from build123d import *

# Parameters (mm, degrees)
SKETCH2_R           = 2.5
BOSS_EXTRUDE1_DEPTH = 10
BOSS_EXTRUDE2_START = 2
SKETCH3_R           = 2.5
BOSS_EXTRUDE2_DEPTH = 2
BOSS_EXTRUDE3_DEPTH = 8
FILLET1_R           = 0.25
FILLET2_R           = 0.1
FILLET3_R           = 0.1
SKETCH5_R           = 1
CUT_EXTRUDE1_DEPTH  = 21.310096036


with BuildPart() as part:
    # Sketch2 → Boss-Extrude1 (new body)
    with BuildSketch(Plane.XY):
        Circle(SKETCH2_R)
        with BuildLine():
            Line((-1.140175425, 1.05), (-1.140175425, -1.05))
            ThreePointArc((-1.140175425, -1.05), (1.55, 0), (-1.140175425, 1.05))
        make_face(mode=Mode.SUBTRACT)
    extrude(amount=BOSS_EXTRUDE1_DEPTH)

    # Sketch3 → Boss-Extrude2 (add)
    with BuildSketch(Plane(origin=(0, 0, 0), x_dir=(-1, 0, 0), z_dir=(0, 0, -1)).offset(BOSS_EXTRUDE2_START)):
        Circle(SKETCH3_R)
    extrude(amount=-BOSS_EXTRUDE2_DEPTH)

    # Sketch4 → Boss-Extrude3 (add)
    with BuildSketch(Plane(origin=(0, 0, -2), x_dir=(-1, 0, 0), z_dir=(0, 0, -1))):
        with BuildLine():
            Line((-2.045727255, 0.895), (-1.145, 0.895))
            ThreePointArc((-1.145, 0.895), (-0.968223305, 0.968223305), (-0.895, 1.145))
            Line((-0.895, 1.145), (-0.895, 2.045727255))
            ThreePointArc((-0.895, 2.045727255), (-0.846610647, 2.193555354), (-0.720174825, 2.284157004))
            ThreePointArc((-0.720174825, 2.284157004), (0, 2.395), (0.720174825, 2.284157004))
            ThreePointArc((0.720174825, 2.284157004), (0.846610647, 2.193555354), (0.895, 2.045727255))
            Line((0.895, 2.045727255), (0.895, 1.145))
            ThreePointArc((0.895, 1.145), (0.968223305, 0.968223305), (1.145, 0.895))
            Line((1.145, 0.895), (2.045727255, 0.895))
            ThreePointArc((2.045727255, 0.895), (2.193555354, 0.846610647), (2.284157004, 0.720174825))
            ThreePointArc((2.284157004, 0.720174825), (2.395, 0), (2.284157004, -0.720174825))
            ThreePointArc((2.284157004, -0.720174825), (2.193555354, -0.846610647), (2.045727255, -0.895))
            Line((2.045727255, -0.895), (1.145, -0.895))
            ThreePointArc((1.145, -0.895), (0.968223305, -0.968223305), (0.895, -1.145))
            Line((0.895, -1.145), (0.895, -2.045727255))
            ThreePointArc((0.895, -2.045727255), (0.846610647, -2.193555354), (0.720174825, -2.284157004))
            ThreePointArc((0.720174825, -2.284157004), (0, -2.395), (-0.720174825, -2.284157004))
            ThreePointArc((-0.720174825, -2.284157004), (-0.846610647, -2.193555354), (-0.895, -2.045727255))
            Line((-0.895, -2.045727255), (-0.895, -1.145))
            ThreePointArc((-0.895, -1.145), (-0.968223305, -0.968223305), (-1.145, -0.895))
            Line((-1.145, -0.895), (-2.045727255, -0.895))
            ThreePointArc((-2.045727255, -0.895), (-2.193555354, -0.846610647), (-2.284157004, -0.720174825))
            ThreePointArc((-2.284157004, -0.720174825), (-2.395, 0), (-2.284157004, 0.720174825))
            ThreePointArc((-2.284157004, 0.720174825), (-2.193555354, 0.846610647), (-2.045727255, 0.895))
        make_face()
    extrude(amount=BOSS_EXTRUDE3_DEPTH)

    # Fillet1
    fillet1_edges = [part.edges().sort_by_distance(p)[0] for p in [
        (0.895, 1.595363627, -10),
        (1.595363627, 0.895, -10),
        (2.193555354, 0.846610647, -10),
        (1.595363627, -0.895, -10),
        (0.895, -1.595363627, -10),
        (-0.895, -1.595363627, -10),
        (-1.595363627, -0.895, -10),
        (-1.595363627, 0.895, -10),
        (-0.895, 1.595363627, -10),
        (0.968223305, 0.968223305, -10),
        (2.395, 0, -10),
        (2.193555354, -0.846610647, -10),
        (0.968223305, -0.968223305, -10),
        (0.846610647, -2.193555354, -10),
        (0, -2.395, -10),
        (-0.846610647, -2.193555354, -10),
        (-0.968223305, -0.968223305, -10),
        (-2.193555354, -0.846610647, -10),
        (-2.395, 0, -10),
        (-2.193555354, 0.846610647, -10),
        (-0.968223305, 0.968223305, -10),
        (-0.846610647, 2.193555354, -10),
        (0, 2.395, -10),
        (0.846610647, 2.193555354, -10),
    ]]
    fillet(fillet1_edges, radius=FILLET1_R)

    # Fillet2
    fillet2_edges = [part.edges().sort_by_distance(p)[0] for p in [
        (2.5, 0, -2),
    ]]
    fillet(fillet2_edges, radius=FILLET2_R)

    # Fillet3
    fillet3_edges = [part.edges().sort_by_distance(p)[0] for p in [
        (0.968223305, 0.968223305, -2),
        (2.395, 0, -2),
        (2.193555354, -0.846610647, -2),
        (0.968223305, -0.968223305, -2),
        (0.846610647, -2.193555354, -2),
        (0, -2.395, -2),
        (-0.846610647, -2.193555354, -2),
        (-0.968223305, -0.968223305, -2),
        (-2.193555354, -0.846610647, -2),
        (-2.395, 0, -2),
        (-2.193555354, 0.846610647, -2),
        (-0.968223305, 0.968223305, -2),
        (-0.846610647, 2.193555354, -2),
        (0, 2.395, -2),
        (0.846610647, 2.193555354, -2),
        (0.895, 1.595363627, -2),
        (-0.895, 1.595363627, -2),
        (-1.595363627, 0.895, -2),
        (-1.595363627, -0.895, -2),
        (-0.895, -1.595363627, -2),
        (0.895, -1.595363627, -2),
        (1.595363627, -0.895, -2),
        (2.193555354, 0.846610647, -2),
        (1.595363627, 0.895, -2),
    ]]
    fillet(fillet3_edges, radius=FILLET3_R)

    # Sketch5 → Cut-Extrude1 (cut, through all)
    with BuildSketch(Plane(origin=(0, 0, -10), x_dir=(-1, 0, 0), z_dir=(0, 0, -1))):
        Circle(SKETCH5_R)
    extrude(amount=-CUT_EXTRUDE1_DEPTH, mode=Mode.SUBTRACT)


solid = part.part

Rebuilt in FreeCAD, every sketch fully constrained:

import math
import FreeCAD as App
import Part
import Sketcher

V = App.Vector
Q = App.Units.Quantity


def edges_at(feature, points):
    """Names of the edges that pass closest to the given points."""
    edges = feature.Shape.Edges
    near = lambda p: min(range(len(edges)), key=lambda i: edges[i].distToShape(Part.Vertex(*p))[0])
    return sorted({f"Edge{near(p) + 1}" for p in points})

doc = App.newDocument("Part")
params = doc.addObject("Spreadsheet::Sheet", "Params")
for row, (alias, value) in enumerate([
    ("sketch1_diameter", "5 mm"),
    ("sketch1_radius", "1.55 mm"),
    ("sketch1_height", "2.1 mm"),
    ("pad1_length", "10 mm"),
    ("sketch2_diameter", "5 mm"),
    ("pad2_length", "2 mm"),
    ("sketch3_radius", "0.25 mm"),
    ("pad3_length", "8 mm"),
    ("fillet_radius", "0.25 mm"),
    ("fillet2_radius", "0.1 mm"),
    ("fillet3_radius", "0.1 mm"),
    ("sketch4_diameter", "2 mm"),
], start=1):
    params.set(f"A{row}", alias)
    params.set(f"B{row}", "=" + value)
    params.setAlias(f"B{row}", alias)

body = doc.addObject("PartDesign::Body", "Body")

# Sketch on XY plane
sketch1 = body.newObject("Sketcher::SketchObject", "Sketch")
sketch1.AttachmentSupport = (doc.getObject("XY_Plane"), [""])
sketch1.MapMode = "FlatFace"
sketch1.addGeometry([
    Part.Circle(V(0, 0, 0), V(0, 0, 1), 2.5),
    Part.LineSegment(V(-1.140175, -1.05, 0), V(-1.140175, 1.05, 0)),
    Part.ArcOfCircle(Part.Circle(V(0, 0, 0), V(0, 0, 1), 1.55), math.radians(-137.35769), math.radians(137.35769)),
], False)
sketch1.addConstraint([
    Sketcher.Constraint("Coincident", 1, 1, 2, 1),
    Sketcher.Constraint("Coincident", 2, 2, 1, 2),
    Sketcher.Constraint("Vertical", 1),
    Sketcher.Constraint("Coincident", 0, 3, -1, 1),
    Sketcher.Constraint("Coincident", 2, 3, -1, 1),
    Sketcher.Constraint("Diameter", 0, Q("5 mm")),
    Sketcher.Constraint("Radius", 2, Q("1.55 mm")),
    Sketcher.Constraint("DistanceY", 1, 1, 1, 2, Q("2.1 mm")),
])
sketch1.setExpression("Constraints[5]", "Params.sketch1_diameter")
sketch1.setExpression("Constraints[6]", "Params.sketch1_radius")
sketch1.setExpression("Constraints[7]", "Params.sketch1_height")
pad1 = body.newObject("PartDesign::Pad", "Pad")
pad1.Profile = sketch1
pad1.setExpression("Length", "Params.pad1_length")

# Sketch on XY plane
sketch2 = body.newObject("Sketcher::SketchObject", "Sketch001")
sketch2.AttachmentSupport = (doc.getObject("XY_Plane"), [""])
sketch2.MapMode = "FlatFace"
sketch2.AttachmentOffset = App.Placement(V(0, 0, -2), App.Rotation())
sketch2.addGeometry(Part.Circle(V(0, 0, 0), V(0, 0, 1), 2.5), False)
sketch2.addConstraint([
    Sketcher.Constraint("Coincident", 0, 3, -1, 1),
    Sketcher.Constraint("Diameter", 0, Q("5 mm")),
])
sketch2.setExpression("Constraints[1]", "Params.sketch2_diameter")
pad2 = body.newObject("PartDesign::Pad", "Pad001")
pad2.Profile = sketch2
pad2.setExpression("Length", "Params.pad2_length")

# Sketch on XY plane
sketch3 = body.newObject("Sketcher::SketchObject", "Sketch002")
sketch3.AttachmentSupport = (doc.getObject("XY_Plane"), [""])
sketch3.MapMode = "FlatFace"
sketch3.AttachmentOffset = App.Placement(V(0, 0, -2), App.Rotation())
sketch3.addGeometry([
    Part.LineSegment(V(1.145, 0.895, 0), V(2.045727, 0.895, 0)),  # 0
    Part.ArcOfCircle(Part.Circle(V(2.045727, 0.645, 0), V(0, 0, 1), 0.25), math.radians(17.499609), math.radians(90)),  # 1
    Part.ArcOfCircle(Part.Circle(V(0, 0, 0), V(0, 0, 1), 2.395), math.radians(-17.49961), math.radians(17.49961)),  # 2
    Part.ArcOfCircle(Part.Circle(V(2.045727, -0.645, 0), V(0, 0, 1), 0.25), math.radians(-90), math.radians(-17.499609)),  # 3
    Part.LineSegment(V(2.045727, -0.895, 0), V(1.145, -0.895, 0)),  # 4
    Part.ArcOfCircle(Part.Circle(V(1.145, -1.145, 0), V(0, 0, 1), 0.25), math.radians(90), math.radians(180)),  # 5
    Part.LineSegment(V(0.895, -1.145, 0), V(0.895, -2.045727, 0)),  # 6
    Part.ArcOfCircle(Part.Circle(V(0.645, -2.045727, 0), V(0, 0, 1), 0.25), math.radians(-72.500391), math.radians(0)),  # 7
    Part.ArcOfCircle(Part.Circle(V(0, 0, 0), V(0, 0, 1), 2.395), math.radians(-107.49961), math.radians(-72.50039)),  # 8
    Part.ArcOfCircle(Part.Circle(V(-0.645, -2.045727, 0), V(0, 0, 1), 0.25), math.radians(180), math.radians(252.500391)),  # 9
    Part.LineSegment(V(-0.895, -2.045727, 0), V(-0.895, -1.145, 0)),  # 10
    Part.ArcOfCircle(Part.Circle(V(-1.145, -1.145, 0), V(0, 0, 1), 0.25), math.radians(0), math.radians(90)),  # 11
    Part.LineSegment(V(-1.145, -0.895, 0), V(-2.045727, -0.895, 0)),  # 12
    Part.ArcOfCircle(Part.Circle(V(-2.045727, -0.645, 0), V(0, 0, 1), 0.25), math.radians(-162.500391), math.radians(-90)),  # 13
    Part.ArcOfCircle(Part.Circle(V(0, 0, 0), V(0, 0, 1), 2.395), math.radians(162.50039), math.radians(197.49961)),  # 14
    Part.ArcOfCircle(Part.Circle(V(-2.045727, 0.645, 0), V(0, 0, 1), 0.25), math.radians(90), math.radians(162.500391)),  # 15
    Part.LineSegment(V(-2.045727, 0.895, 0), V(-1.145, 0.895, 0)),  # 16
    Part.ArcOfCircle(Part.Circle(V(-1.145, 1.145, 0), V(0, 0, 1), 0.25), math.radians(-90), math.radians(0)),  # 17
    Part.LineSegment(V(-0.895, 1.145, 0), V(-0.895, 2.045727, 0)),  # 18
    Part.ArcOfCircle(Part.Circle(V(-0.645, 2.045727, 0), V(0, 0, 1), 0.25), math.radians(107.499609), math.radians(180)),  # 19
    Part.ArcOfCircle(Part.Circle(V(0, 0, 0), V(0, 0, 1), 2.395), math.radians(72.50039), math.radians(107.49961)),  # 20
    Part.ArcOfCircle(Part.Circle(V(0.645, 2.045727, 0), V(0, 0, 1), 0.25), math.radians(0), math.radians(72.500391)),  # 21
    Part.LineSegment(V(0.895, 2.045727, 0), V(0.895, 1.145, 0)),  # 22
    Part.ArcOfCircle(Part.Circle(V(1.145, 1.145, 0), V(0, 0, 1), 0.25), math.radians(-180), math.radians(-90)),  # 23
], False)
sketch3.addConstraint([
    Sketcher.Constraint("Tangent", 0, 2, 1, 2),
    Sketcher.Constraint("Tangent", 1, 1, 2, 2),
    Sketcher.Constraint("Tangent", 2, 1, 3, 2),
    Sketcher.Constraint("Tangent", 3, 1, 4, 1),
    Sketcher.Constraint("Tangent", 4, 2, 5, 1),
    Sketcher.Constraint("Tangent", 5, 2, 6, 1),
    Sketcher.Constraint("Tangent", 6, 2, 7, 2),
    Sketcher.Constraint("Tangent", 7, 1, 8, 2),
    Sketcher.Constraint("Tangent", 8, 1, 9, 2),
    Sketcher.Constraint("Tangent", 9, 1, 10, 1),
    Sketcher.Constraint("Tangent", 10, 2, 11, 1),
    Sketcher.Constraint("Tangent", 11, 2, 12, 1),
    Sketcher.Constraint("Tangent", 12, 2, 13, 2),
    Sketcher.Constraint("Tangent", 13, 1, 14, 2),
    Sketcher.Constraint("Tangent", 14, 1, 15, 2),
    Sketcher.Constraint("Tangent", 15, 1, 16, 1),
    Sketcher.Constraint("Tangent", 16, 2, 17, 1),
    Sketcher.Constraint("Tangent", 17, 2, 18, 1),
    Sketcher.Constraint("Tangent", 18, 2, 19, 2),
    Sketcher.Constraint("Tangent", 19, 1, 20, 2),
    Sketcher.Constraint("Tangent", 20, 1, 21, 2),
    Sketcher.Constraint("Tangent", 21, 1, 22, 1),
    Sketcher.Constraint("Tangent", 22, 2, 23, 1),
    Sketcher.Constraint("Tangent", 23, 2, 0, 1),
    Sketcher.Constraint("Horizontal", 0),
    Sketcher.Constraint("Horizontal", 4),
    Sketcher.Constraint("Vertical", 6),
    Sketcher.Constraint("Vertical", 10),
    Sketcher.Constraint("Horizontal", 12),
    Sketcher.Constraint("Horizontal", 16),
    Sketcher.Constraint("Vertical", 18),
    Sketcher.Constraint("Vertical", 22),
    Sketcher.Constraint("Coincident", 2, 3, -1, 1),
    Sketcher.Constraint("Coincident", 8, 3, -1, 1),
    Sketcher.Constraint("Coincident", 14, 3, -1, 1),
    Sketcher.Constraint("Coincident", 20, 3, -1, 1),
    Sketcher.Constraint("Equal", 1, 3),
    Sketcher.Constraint("Equal", 3, 5),
    Sketcher.Constraint("Equal", 5, 7),
    Sketcher.Constraint("Equal", 2, 8),
    Sketcher.Constraint("Equal", 7, 9),
    Sketcher.Constraint("Equal", 9, 11),
    Sketcher.Constraint("Equal", 11, 13),
    Sketcher.Constraint("Equal", 8, 14),
    Sketcher.Constraint("Equal", 13, 15),
    Sketcher.Constraint("Equal", 15, 17),
    Sketcher.Constraint("Equal", 17, 19),
    Sketcher.Constraint("Equal", 14, 20),
    Sketcher.Constraint("Equal", 19, 21),
    Sketcher.Constraint("Equal", 21, 23),
    Sketcher.Constraint("Symmetric", 5, 3, 17, 3, -1, 1),
    Sketcher.Constraint("Symmetric", 11, 3, 23, 3, -1, 1),
    Sketcher.Constraint("Symmetric", 5, 3, 11, 3, -2),
    Sketcher.Constraint("Equal", 16, 6),
    Sketcher.Constraint("Radius", 1, Q("0.25 mm")),
    Sketcher.Constraint("Radius", 2, Q("2.395 mm")),
    Sketcher.Constraint("DistanceY", 3, 3, 1, 3, Q("1.29 mm")),
])
sketch3.setExpression("Constraints[54]", "Params.sketch3_radius")
pad3 = body.newObject("PartDesign::Pad", "Pad002")
pad3.Profile = sketch3
pad3.setExpression("Length", "Params.pad3_length")
pad3.Reversed = True
doc.recompute()

fillet = body.newObject("PartDesign::Fillet", "Fillet")
fillet.Base = (pad3, edges_at(pad3, [
    (0.895, 1.595, -10),
    (1.595, 0.895, -10),
    (2.194, 0.847, -10),
    (1.595, -0.895, -10),
    (0.895, -1.595, -10),
    (-0.895, -1.595, -10),
    (-1.595, -0.895, -10),
    (-1.595, 0.895, -10),
    (-0.895, 1.595, -10),
    (0.968, 0.968, -10),
    (2.395, 0, -10),
    (2.194, -0.847, -10),
    (0.968, -0.968, -10),
    (0.847, -2.194, -10),
    (0, -2.395, -10),
    (-0.847, -2.194, -10),
    (-0.968, -0.968, -10),
    (-2.194, -0.847, -10),
    (-2.395, 0, -10),
    (-2.194, 0.847, -10),
    (-0.968, 0.968, -10),
    (-0.847, 2.194, -10),
    (0, 2.395, -10),
    (0.847, 2.194, -10),
]))
fillet.setExpression("Radius", "Params.fillet_radius")
doc.recompute()

fillet2 = body.newObject("PartDesign::Fillet", "Fillet001")
fillet2.Base = (fillet, edges_at(fillet, [(2.5, 0, -2)]))
fillet2.setExpression("Radius", "Params.fillet2_radius")
doc.recompute()

fillet3 = body.newObject("PartDesign::Fillet", "Fillet002")
fillet3.Base = (fillet2, edges_at(fillet2, [
    (0.968, 0.968, -2),
    (2.395, 0, -2),
    (2.194, -0.847, -2),
    (0.968, -0.968, -2),
    (0.847, -2.194, -2),
    (0, -2.395, -2),
    (-0.847, -2.194, -2),
    (-0.968, -0.968, -2),
    (-2.194, -0.847, -2),
    (-2.395, 0, -2),
    (-2.194, 0.847, -2),
    (-0.968, 0.968, -2),
    (-0.847, 2.194, -2),
    (0, 2.395, -2),
    (0.847, 2.194, -2),
    (0.895, 1.595, -2),
    (-0.895, 1.595, -2),
    (-1.595, 0.895, -2),
    (-1.595, -0.895, -2),
    (-0.895, -1.595, -2),
    (0.895, -1.595, -2),
    (1.595, -0.895, -2),
    (2.194, 0.847, -2),
    (1.595, 0.895, -2),
]))
fillet3.setExpression("Radius", "Params.fillet3_radius")

# Sketch on XY plane
sketch4 = body.newObject("Sketcher::SketchObject", "Sketch003")
sketch4.AttachmentSupport = (doc.getObject("XY_Plane"), [""])
sketch4.MapMode = "FlatFace"
sketch4.AttachmentOffset = App.Placement(V(0, 0, -10), App.Rotation())
sketch4.addGeometry(Part.Circle(V(0, 0, 0), V(0, 0, 1), 1), False)
sketch4.addConstraint([
    Sketcher.Constraint("Coincident", 0, 3, -1, 1),
    Sketcher.Constraint("Diameter", 0, Q("2 mm")),
])
sketch4.setExpression("Constraints[1]", "Params.sketch4_diameter")
pocket1 = body.newObject("PartDesign::Pocket", "Pocket")
pocket1.Profile = sketch4
pocket1.Type = "ThroughAll"
pocket1.Reversed = True

doc.recompute()
